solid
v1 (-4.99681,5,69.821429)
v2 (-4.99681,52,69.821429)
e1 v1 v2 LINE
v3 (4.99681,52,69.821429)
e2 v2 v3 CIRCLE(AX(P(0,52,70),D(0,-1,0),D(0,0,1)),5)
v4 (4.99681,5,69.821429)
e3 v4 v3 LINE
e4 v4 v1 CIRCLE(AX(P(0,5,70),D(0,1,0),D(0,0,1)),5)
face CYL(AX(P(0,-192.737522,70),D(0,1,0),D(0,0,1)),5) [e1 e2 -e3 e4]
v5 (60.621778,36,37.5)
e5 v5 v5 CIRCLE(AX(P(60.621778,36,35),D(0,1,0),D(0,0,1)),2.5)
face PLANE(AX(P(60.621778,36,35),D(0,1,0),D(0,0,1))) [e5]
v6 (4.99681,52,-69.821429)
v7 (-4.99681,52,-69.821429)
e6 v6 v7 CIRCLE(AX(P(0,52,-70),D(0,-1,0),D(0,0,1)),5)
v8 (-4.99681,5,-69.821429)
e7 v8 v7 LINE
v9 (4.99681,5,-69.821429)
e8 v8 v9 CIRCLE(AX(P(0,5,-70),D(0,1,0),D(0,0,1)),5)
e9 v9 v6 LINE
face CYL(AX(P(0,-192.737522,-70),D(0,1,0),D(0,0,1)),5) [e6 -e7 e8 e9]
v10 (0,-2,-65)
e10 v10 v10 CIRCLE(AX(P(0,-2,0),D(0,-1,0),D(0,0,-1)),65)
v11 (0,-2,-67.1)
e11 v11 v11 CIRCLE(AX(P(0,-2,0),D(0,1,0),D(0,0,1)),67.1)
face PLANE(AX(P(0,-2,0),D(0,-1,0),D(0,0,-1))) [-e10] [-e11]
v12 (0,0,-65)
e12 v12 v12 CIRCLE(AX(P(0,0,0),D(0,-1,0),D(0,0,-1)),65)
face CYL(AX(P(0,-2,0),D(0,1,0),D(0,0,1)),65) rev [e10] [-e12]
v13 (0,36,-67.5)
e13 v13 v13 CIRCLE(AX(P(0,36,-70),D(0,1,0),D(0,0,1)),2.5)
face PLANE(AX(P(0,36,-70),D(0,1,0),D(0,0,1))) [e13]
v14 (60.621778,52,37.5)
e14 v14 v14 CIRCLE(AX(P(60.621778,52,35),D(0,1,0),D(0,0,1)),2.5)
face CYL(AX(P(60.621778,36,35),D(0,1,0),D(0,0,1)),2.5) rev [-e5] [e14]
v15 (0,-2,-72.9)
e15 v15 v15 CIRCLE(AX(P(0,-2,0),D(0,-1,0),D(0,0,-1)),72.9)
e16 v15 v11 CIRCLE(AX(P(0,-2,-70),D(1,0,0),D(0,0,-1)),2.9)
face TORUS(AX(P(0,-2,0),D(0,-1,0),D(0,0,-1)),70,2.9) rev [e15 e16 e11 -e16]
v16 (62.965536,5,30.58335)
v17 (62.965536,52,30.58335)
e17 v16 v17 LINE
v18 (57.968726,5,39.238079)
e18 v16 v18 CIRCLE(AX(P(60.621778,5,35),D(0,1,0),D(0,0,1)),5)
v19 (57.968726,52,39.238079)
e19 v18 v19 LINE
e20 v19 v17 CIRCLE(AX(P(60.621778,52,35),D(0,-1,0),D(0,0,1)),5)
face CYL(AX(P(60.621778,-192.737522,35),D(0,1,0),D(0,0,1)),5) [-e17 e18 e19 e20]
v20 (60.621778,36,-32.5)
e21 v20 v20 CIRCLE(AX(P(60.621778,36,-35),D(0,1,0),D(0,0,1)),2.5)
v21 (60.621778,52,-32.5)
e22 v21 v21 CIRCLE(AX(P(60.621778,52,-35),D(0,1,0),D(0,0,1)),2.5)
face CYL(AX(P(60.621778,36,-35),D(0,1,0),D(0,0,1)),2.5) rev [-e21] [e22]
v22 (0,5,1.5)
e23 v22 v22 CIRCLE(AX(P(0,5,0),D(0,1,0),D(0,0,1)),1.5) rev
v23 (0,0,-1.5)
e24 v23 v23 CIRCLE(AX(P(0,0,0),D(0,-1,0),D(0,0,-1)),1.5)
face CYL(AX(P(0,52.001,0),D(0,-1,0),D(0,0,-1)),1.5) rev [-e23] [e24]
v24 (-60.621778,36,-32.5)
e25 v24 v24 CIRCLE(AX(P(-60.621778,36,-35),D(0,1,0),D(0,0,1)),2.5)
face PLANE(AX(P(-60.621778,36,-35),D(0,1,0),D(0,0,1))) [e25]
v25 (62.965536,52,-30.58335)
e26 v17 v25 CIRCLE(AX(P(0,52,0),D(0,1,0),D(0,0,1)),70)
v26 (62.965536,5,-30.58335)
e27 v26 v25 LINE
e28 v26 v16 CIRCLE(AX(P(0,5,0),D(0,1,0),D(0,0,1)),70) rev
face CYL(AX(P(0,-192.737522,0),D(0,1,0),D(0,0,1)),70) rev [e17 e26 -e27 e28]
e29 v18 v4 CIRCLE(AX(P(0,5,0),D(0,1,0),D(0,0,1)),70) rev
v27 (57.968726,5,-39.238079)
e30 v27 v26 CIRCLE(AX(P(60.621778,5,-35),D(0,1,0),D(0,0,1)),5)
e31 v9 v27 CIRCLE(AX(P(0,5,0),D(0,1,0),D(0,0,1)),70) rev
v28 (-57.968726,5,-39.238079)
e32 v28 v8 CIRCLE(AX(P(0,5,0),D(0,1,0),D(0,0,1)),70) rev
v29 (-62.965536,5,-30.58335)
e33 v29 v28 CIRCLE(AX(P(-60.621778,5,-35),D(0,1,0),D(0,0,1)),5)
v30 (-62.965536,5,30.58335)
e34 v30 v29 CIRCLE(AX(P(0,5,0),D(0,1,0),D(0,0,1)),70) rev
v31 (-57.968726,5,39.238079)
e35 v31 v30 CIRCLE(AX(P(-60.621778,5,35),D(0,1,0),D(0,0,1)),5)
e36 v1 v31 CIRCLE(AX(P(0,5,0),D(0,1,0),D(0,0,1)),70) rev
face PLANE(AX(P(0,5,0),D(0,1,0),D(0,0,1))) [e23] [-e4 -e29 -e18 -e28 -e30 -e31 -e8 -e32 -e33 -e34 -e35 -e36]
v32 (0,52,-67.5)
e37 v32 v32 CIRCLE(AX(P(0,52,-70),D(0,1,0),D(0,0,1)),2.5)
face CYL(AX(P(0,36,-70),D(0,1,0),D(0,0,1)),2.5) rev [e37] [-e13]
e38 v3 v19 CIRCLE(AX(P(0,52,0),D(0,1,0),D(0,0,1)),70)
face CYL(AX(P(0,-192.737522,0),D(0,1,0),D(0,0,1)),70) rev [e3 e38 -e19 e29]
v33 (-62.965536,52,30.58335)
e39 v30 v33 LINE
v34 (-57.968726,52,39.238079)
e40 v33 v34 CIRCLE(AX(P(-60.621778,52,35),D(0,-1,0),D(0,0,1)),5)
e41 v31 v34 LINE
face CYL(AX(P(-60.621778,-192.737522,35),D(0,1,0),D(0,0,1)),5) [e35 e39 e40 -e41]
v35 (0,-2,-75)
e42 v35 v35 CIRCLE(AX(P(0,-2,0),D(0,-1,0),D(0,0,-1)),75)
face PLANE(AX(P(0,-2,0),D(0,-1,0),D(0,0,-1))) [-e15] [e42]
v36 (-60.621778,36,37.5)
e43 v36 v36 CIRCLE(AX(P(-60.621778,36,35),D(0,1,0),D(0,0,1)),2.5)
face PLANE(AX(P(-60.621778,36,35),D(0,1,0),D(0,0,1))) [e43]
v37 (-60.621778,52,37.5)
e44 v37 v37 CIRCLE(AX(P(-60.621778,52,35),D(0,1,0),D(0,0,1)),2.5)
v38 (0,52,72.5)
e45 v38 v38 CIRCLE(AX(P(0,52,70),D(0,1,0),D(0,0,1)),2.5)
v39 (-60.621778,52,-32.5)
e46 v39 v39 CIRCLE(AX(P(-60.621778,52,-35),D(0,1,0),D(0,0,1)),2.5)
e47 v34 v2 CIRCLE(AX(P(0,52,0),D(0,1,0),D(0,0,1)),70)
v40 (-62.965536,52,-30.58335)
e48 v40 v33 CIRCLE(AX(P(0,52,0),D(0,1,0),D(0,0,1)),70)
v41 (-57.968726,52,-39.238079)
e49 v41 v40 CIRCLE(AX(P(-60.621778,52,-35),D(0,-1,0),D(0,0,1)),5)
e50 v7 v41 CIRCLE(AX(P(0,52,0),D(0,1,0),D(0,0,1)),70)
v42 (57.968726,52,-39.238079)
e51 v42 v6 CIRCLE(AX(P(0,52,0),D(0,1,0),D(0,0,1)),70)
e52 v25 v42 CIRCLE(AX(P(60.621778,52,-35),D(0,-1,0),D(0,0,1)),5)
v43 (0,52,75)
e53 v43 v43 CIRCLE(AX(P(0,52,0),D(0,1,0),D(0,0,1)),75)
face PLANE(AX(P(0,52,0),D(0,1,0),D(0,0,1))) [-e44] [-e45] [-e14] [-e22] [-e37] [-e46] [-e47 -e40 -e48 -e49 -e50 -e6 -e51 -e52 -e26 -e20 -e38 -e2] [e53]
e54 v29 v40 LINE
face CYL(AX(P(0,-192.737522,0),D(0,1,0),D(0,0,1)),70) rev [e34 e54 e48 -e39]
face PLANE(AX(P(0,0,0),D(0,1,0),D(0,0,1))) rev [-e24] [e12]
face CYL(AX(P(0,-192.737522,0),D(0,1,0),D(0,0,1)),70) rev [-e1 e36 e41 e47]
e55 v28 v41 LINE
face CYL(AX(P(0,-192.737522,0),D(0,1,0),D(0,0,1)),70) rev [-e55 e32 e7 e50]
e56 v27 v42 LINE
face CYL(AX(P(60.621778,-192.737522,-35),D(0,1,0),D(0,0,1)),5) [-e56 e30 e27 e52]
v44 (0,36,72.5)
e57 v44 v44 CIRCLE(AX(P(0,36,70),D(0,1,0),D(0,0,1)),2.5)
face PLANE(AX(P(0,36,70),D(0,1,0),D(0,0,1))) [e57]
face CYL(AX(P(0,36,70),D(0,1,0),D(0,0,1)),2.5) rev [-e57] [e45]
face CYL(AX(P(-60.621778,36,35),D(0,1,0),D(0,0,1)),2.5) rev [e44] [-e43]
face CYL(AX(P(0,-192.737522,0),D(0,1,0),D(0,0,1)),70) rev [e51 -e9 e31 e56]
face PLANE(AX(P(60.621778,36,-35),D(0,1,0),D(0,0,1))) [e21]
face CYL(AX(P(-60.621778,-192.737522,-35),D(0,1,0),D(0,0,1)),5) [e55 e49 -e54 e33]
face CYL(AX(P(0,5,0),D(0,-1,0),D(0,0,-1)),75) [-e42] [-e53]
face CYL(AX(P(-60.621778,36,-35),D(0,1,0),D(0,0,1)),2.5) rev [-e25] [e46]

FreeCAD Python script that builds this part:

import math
import FreeCAD as App
import Part
import Sketcher

V = App.Vector

doc = App.newDocument("Part")
body = doc.addObject("PartDesign::Body", "Body")

# Sketch on XZ plane
sketch1 = body.newObject("Sketcher::SketchObject", "Sketch")
sketch1.AttachmentSupport = (doc.getObject("XZ_Plane"), [""])
sketch1.MapMode = "FlatFace"
sketch1.addGeometry(Part.Circle(V(0, 0, 0), V(0, 0, 1), 75), False)
sketch1.addConstraint(Sketcher.Constraint("Coincident", 0, 3, -1, 1))
sketch1.addConstraint(Sketcher.Constraint("Diameter", 0, 150.0))
pad1 = body.newObject("PartDesign::Pad", "Pad")
pad1.Profile = sketch1
pad1.Length = 5
pad1.Reversed = True

# Sketch on XZ plane
sketch2 = body.newObject("Sketcher::SketchObject", "Sketch001")
sketch2.AttachmentSupport = (doc.getObject("XZ_Plane"), [""])
sketch2.MapMode = "FlatFace"
sketch2.AttachmentOffset = App.Placement(V(0, 0, -5), App.Rotation())
sketch2.addGeometry(Part.Circle(V(0, 0, 0), V(0, 0, 1), 75), False)
sketch2.addGeometry(Part.Circle(V(0, 0, 0), V(0, 0, 1), 65), False)
sketch2.addConstraint(Sketcher.Constraint("Coincident", 0, 3, -1, 1))
sketch2.addConstraint(Sketcher.Constraint("Coincident", 1, 3, -1, 1))
sketch2.addConstraint(Sketcher.Constraint("Diameter", 0, 150.0))
sketch2.addConstraint(Sketcher.Constraint("Diameter", 1, 130.0))
pad2 = body.newObject("PartDesign::Pad", "Pad001")
pad2.Profile = sketch2
pad2.Length = 47
pad2.Reversed = True

# Sketch on XZ plane
sketch3 = body.newObject("Sketcher::SketchObject", "Sketch002")
sketch3.AttachmentSupport = (doc.getObject("XZ_Plane"), [""])
sketch3.MapMode = "FlatFace"
sketch3.AttachmentOffset = App.Placement(V(0, 0, -52), App.Rotation())
sketch3.addGeometry(Part.Circle(V(0, -70, 0), V(0, 0, 1), 2.5), False)
sketch3.addGeometry(Part.Circle(V(60.6, -35, 0), V(0, 0, 1), 2.5), False)
sketch3.addGeometry(Part.Circle(V(60.6, 35, 0), V(0, 0, 1), 2.5), False)
sketch3.addGeometry(Part.Circle(V(0, 70, 0), V(0, 0, 1), 2.5), False)
sketch3.addGeometry(Part.Circle(V(-60.6, 35, 0), V(0, 0, 1), 2.5), False)
sketch3.addGeometry(Part.Circle(V(-60.6, -35, 0), V(0, 0, 1), 2.5), False)
sketch3.addConstraint(Sketcher.Constraint("Equal", 0, 1))
sketch3.addConstraint(Sketcher.Constraint("Equal", 1, 2))
sketch3.addConstraint(Sketcher.Constraint("Equal", 2, 3))
sketch3.addConstraint(Sketcher.Constraint("Equal", 3, 4))
sketch3.addConstraint(Sketcher.Constraint("Equal", 4, 5))
sketch3.addConstraint(Sketcher.Constraint("Symmetric", 0, 3, 3, 3, -1, 1))
sketch3.addConstraint(Sketcher.Constraint("Symmetric", 1, 3, 4, 3, -1, 1))
sketch3.addConstraint(Sketcher.Constraint("Symmetric", 2, 3, 5, 3, -1, 1))
sketch3.addConstraint(Sketcher.Constraint("Symmetric", 2, 3, 4, 3, -2))
sketch3.addConstraint(Sketcher.Constraint("PointOnObject", 0, 3, -2))
sketch3.addConstraint(Sketcher.Constraint("Diameter", 0, 5.0))
sketch3.addConstraint(Sketcher.Constraint("DistanceY", 0, 3, -1, 1, 70.0))
sketch3.addConstraint(Sketcher.Constraint("DistanceY", 1, 3, -1, 1, 35.0))
sketch3.addConstraint(Sketcher.Constraint("DistanceX", -1, 1, 1, 3, 60.621778))
pocket1 = body.newObject("PartDesign::Pocket", "Pocket")
pocket1.Profile = sketch3
pocket1.Length = 16
pocket1.Reversed = True

# Sketch on XZ plane
sketch4 = body.newObject("Sketcher::SketchObject", "Sketch003")
sketch4.AttachmentSupport = (doc.getObject("XZ_Plane"), [""])
sketch4.MapMode = "FlatFace"
sketch4.addGeometry(Part.Circle(V(0, 0, 0), V(0, 0, 1), 1.5), False)
sketch4.addConstraint(Sketcher.Constraint("Coincident", 0, 3, -1, 1))
sketch4.addConstraint(Sketcher.Constraint("Diameter", 0, 3.0))
pocket2 = body.newObject("PartDesign::Pocket", "Pocket001")
pocket2.Profile = sketch4
pocket2.Type = "UpToFirst"

# Sketch on XZ plane
sketch5 = body.newObject("Sketcher::SketchObject", "Sketch004")
sketch5.AttachmentSupport = (doc.getObject("XZ_Plane"), [""])
sketch5.MapMode = "FlatFace"
sketch5.AttachmentOffset = App.Placement(V(0, 0, -52), App.Rotation())
sketch5.addGeometry(Part.ArcOfCircle(Part.Circle(V(0, 0, 0), V(0, 0, 1), 70), math.radians(154), math.radians(206)), False)
sketch5.addGeometry(Part.ArcOfCircle(Part.Circle(V(-61, 35, 0), V(0, 0, 1), 5), math.radians(-118), math.radians(58)), False)
sketch5.addGeometry(Part.ArcOfCircle(Part.Circle(V(0, 0, 0), V(0, 0, 1), 70), math.radians(94), math.radians(146)), False)
sketch5.addGeometry(Part.ArcOfCircle(Part.Circle(V(0, 70, 0), V(0, 0, 1), 5), math.radians(-178), math.radians(-2)), False)
sketch5.addGeometry(Part.ArcOfCircle(Part.Circle(V(0, 0, 0), V(0, 0, 1), 70), math.radians(34), math.radians(86)), False)
sketch5.addGeometry(Part.ArcOfCircle(Part.Circle(V(61, 35, 0), V(0, 0, 1), 5), math.radians(122), math.radians(298)), False)
sketch5.addGeometry(Part.ArcOfCircle(Part.Circle(V(0, 0, 0), V(0, 0, 1), 70), math.radians(-26), math.radians(26)), False)
sketch5.addGeometry(Part.ArcOfCircle(Part.Circle(V(61, -35, 0), V(0, 0, 1), 5), math.radians(62), math.radians(238)), False)
sketch5.addGeometry(Part.ArcOfCircle(Part.Circle(V(0, 0, 0), V(0, 0, 1), 70), math.radians(-86), math.radians(-34)), False)
sketch5.addGeometry(Part.ArcOfCircle(Part.Circle(V(0, -70, 0), V(0, 0, 1), 5), math.radians(2), math.radians(178)), False)
sketch5.addGeometry(Part.ArcOfCircle(Part.Circle(V(0, 0, 0), V(0, 0, 1), 70), math.radians(-146), math.radians(-94)), False)
sketch5.addGeometry(Part.ArcOfCircle(Part.Circle(V(-61, -35, 0), V(0, 0, 1), 5), math.radians(-58), math.radians(118)), False)
sketch5.addGeometry(Part.Circle(V(0, 0, 0), V(0, 0, 1), 60), False)
sketch5.addConstraint(Sketcher.Constraint("Coincident", 0, 1, 1, 1))
sketch5.addConstraint(Sketcher.Constraint("Coincident", 1, 2, 2, 2))
sketch5.addConstraint(Sketcher.Constraint("Coincident", 2, 1, 3, 1))
sketch5.addConstraint(Sketcher.Constraint("Coincident", 3, 2, 4, 2))
sketch5.addConstraint(Sketcher.Constraint("Coincident", 4, 1, 5, 1))
sketch5.addConstraint(Sketcher.Constraint("Coincident", 5, 2, 6, 2))
sketch5.addConstraint(Sketcher.Constraint("Coincident", 6, 1, 7, 1))
sketch5.addConstraint(Sketcher.Constraint("Coincident", 7, 2, 8, 2))
sketch5.addConstraint(Sketcher.Constraint("Coincident", 8, 1, 9, 1))
sketch5.addConstraint(Sketcher.Constraint("Coincident", 9, 2, 10, 2))
sketch5.addConstraint(Sketcher.Constraint("Coincident", 10, 1, 11, 1))
sketch5.addConstraint(Sketcher.Constraint("Coincident", 11, 2, 0, 2))
sketch5.addConstraint(Sketcher.Constraint("Coincident", 0, 3, -1, 1))
sketch5.addConstraint(Sketcher.Constraint("Coincident", 2, 3, -1, 1))
sketch5.addConstraint(Sketcher.Constraint("Coincident", 4, 3, -1, 1))
sketch5.addConstraint(Sketcher.Constraint("Coincident", 6, 3, -1, 1))
sketch5.addConstraint(Sketcher.Constraint("Coincident", 8, 3, -1, 1))
sketch5.addConstraint(Sketcher.Constraint("Coincident", 10, 3, -1, 1))
sketch5.addConstraint(Sketcher.Constraint("Coincident", 12, 3, -1, 1))
sketch5.addConstraint(Sketcher.Constraint("Equal", 0, 2))
sketch5.addConstraint(Sketcher.Constraint("Equal", 1, 3))
sketch5.addConstraint(Sketcher.Constraint("Equal", 2, 4))
sketch5.addConstraint(Sketcher.Constraint("Equal", 3, 5))
sketch5.addConstraint(Sketcher.Constraint("Equal", 4, 6))
sketch5.addConstraint(Sketcher.Constraint("Equal", 5, 7))
sketch5.addConstraint(Sketcher.Constraint("Equal", 6, 8))
sketch5.addConstraint(Sketcher.Constraint("Equal", 7, 9))
sketch5.addConstraint(Sketcher.Constraint("Equal", 8, 10))
sketch5.addConstraint(Sketcher.Constraint("Equal", 9, 11))
sketch5.addConstraint(Sketcher.Constraint("Symmetric", 1, 3, 7, 3, -1, 1))
sketch5.addConstraint(Sketcher.Constraint("Symmetric", 3, 3, 9, 3, -1, 1))
sketch5.addConstraint(Sketcher.Constraint("Symmetric", 5, 3, 11, 3, -1, 1))
sketch5.addConstraint(Sketcher.Constraint("Symmetric", 1, 3, 5, 3, -2))
sketch5.addConstraint(Sketcher.Constraint("PointOnObject", 3, 3, -2))
sketch5.addConstraint(Sketcher.Constraint("Diameter", 12, 120.0))
sketch5.addConstraint(Sketcher.Constraint("Radius", 0, 70.0))
sketch5.addConstraint(Sketcher.Constraint("Radius", 1, 5.0))
sketch5.addConstraint(Sketcher.Constraint("DistanceY", -1, 1, 1, 3, 35.0))
sketch5.addConstraint(Sketcher.Constraint("DistanceY", -1, 1, 3, 3, 70.0))
sketch5.addConstraint(Sketcher.Constraint("DistanceY", 6, 1, 5, 2, 61.166699))
pocket3 = body.newObject("PartDesign::Pocket", "Pocket002")
pocket3.Profile = sketch5
pocket3.Length = 47
pocket3.Reversed = True

# Sketch on XZ plane
sketch6 = body.newObject("Sketcher::SketchObject", "Sketch005")
sketch6.AttachmentSupport = (doc.getObject("XZ_Plane"), [""])
sketch6.MapMode = "FlatFace"
sketch6.addGeometry(Part.Circle(V(0, 0, 0), V(0, 0, 1), 75), False)
sketch6.addGeometry(Part.Circle(V(0, 0, 0), V(0, 0, 1), 65), False)
sketch6.addConstraint(Sketcher.Constraint("Coincident", 0, 3, -1, 1))
sketch6.addConstraint(Sketcher.Constraint("Coincident", 1, 3, -1, 1))
sketch6.addConstraint(Sketcher.Constraint("Diameter", 0, 150.0))
sketch6.addConstraint(Sketcher.Constraint("Diameter", 1, 130.0))
pad3 = body.newObject("PartDesign::Pad", "Pad002")
pad3.Profile = sketch6
pad3.Length = 2

# Sketch on XY plane
sketch7 = body.newObject("Sketcher::SketchObject", "Sketch006")
sketch7.AttachmentSupport = (doc.getObject("XY_Plane"), [""])
sketch7.MapMode = "FlatFace"
sketch7.addGeometry(Part.Circle(V(70, -2, 0), V(0, 0, 1), 2.9), False)
sketch7.addConstraint(Sketcher.Constraint("Diameter", 0, 5.8))
sketch7.addConstraint(Sketcher.Constraint("DistanceX", -1, 1, 0, 3, 70.0))
sketch7.addConstraint(Sketcher.Constraint("DistanceY", 0, 3, -1, 1, 2.0))

# Sketch on XZ plane
sketch8 = body.newObject("Sketcher::SketchObject", "Sketch007")
sketch8.AttachmentSupport = (doc.getObject("XZ_Plane"), [""])
sketch8.MapMode = "FlatFace"
sketch8.AttachmentOffset = App.Placement(V(0, 0, 2), App.Rotation())
sketch8.addGeometry(Part.Circle(V(0, 0, 0), V(0, 0, 1), 70), False)
sketch8.addConstraint(Sketcher.Constraint("Coincident", 0, 3, -1, 1))
sketch8.addConstraint(Sketcher.Constraint("Diameter", 0, 140.0))
doc.recompute()

subtractivepipe = body.newObject("PartDesign::SubtractivePipe", "SubtractivePipe")
subtractivepipe.Profile = sketch7
subtractivepipe.Spine = (sketch8, ["Edge1"])

doc.recompute()
